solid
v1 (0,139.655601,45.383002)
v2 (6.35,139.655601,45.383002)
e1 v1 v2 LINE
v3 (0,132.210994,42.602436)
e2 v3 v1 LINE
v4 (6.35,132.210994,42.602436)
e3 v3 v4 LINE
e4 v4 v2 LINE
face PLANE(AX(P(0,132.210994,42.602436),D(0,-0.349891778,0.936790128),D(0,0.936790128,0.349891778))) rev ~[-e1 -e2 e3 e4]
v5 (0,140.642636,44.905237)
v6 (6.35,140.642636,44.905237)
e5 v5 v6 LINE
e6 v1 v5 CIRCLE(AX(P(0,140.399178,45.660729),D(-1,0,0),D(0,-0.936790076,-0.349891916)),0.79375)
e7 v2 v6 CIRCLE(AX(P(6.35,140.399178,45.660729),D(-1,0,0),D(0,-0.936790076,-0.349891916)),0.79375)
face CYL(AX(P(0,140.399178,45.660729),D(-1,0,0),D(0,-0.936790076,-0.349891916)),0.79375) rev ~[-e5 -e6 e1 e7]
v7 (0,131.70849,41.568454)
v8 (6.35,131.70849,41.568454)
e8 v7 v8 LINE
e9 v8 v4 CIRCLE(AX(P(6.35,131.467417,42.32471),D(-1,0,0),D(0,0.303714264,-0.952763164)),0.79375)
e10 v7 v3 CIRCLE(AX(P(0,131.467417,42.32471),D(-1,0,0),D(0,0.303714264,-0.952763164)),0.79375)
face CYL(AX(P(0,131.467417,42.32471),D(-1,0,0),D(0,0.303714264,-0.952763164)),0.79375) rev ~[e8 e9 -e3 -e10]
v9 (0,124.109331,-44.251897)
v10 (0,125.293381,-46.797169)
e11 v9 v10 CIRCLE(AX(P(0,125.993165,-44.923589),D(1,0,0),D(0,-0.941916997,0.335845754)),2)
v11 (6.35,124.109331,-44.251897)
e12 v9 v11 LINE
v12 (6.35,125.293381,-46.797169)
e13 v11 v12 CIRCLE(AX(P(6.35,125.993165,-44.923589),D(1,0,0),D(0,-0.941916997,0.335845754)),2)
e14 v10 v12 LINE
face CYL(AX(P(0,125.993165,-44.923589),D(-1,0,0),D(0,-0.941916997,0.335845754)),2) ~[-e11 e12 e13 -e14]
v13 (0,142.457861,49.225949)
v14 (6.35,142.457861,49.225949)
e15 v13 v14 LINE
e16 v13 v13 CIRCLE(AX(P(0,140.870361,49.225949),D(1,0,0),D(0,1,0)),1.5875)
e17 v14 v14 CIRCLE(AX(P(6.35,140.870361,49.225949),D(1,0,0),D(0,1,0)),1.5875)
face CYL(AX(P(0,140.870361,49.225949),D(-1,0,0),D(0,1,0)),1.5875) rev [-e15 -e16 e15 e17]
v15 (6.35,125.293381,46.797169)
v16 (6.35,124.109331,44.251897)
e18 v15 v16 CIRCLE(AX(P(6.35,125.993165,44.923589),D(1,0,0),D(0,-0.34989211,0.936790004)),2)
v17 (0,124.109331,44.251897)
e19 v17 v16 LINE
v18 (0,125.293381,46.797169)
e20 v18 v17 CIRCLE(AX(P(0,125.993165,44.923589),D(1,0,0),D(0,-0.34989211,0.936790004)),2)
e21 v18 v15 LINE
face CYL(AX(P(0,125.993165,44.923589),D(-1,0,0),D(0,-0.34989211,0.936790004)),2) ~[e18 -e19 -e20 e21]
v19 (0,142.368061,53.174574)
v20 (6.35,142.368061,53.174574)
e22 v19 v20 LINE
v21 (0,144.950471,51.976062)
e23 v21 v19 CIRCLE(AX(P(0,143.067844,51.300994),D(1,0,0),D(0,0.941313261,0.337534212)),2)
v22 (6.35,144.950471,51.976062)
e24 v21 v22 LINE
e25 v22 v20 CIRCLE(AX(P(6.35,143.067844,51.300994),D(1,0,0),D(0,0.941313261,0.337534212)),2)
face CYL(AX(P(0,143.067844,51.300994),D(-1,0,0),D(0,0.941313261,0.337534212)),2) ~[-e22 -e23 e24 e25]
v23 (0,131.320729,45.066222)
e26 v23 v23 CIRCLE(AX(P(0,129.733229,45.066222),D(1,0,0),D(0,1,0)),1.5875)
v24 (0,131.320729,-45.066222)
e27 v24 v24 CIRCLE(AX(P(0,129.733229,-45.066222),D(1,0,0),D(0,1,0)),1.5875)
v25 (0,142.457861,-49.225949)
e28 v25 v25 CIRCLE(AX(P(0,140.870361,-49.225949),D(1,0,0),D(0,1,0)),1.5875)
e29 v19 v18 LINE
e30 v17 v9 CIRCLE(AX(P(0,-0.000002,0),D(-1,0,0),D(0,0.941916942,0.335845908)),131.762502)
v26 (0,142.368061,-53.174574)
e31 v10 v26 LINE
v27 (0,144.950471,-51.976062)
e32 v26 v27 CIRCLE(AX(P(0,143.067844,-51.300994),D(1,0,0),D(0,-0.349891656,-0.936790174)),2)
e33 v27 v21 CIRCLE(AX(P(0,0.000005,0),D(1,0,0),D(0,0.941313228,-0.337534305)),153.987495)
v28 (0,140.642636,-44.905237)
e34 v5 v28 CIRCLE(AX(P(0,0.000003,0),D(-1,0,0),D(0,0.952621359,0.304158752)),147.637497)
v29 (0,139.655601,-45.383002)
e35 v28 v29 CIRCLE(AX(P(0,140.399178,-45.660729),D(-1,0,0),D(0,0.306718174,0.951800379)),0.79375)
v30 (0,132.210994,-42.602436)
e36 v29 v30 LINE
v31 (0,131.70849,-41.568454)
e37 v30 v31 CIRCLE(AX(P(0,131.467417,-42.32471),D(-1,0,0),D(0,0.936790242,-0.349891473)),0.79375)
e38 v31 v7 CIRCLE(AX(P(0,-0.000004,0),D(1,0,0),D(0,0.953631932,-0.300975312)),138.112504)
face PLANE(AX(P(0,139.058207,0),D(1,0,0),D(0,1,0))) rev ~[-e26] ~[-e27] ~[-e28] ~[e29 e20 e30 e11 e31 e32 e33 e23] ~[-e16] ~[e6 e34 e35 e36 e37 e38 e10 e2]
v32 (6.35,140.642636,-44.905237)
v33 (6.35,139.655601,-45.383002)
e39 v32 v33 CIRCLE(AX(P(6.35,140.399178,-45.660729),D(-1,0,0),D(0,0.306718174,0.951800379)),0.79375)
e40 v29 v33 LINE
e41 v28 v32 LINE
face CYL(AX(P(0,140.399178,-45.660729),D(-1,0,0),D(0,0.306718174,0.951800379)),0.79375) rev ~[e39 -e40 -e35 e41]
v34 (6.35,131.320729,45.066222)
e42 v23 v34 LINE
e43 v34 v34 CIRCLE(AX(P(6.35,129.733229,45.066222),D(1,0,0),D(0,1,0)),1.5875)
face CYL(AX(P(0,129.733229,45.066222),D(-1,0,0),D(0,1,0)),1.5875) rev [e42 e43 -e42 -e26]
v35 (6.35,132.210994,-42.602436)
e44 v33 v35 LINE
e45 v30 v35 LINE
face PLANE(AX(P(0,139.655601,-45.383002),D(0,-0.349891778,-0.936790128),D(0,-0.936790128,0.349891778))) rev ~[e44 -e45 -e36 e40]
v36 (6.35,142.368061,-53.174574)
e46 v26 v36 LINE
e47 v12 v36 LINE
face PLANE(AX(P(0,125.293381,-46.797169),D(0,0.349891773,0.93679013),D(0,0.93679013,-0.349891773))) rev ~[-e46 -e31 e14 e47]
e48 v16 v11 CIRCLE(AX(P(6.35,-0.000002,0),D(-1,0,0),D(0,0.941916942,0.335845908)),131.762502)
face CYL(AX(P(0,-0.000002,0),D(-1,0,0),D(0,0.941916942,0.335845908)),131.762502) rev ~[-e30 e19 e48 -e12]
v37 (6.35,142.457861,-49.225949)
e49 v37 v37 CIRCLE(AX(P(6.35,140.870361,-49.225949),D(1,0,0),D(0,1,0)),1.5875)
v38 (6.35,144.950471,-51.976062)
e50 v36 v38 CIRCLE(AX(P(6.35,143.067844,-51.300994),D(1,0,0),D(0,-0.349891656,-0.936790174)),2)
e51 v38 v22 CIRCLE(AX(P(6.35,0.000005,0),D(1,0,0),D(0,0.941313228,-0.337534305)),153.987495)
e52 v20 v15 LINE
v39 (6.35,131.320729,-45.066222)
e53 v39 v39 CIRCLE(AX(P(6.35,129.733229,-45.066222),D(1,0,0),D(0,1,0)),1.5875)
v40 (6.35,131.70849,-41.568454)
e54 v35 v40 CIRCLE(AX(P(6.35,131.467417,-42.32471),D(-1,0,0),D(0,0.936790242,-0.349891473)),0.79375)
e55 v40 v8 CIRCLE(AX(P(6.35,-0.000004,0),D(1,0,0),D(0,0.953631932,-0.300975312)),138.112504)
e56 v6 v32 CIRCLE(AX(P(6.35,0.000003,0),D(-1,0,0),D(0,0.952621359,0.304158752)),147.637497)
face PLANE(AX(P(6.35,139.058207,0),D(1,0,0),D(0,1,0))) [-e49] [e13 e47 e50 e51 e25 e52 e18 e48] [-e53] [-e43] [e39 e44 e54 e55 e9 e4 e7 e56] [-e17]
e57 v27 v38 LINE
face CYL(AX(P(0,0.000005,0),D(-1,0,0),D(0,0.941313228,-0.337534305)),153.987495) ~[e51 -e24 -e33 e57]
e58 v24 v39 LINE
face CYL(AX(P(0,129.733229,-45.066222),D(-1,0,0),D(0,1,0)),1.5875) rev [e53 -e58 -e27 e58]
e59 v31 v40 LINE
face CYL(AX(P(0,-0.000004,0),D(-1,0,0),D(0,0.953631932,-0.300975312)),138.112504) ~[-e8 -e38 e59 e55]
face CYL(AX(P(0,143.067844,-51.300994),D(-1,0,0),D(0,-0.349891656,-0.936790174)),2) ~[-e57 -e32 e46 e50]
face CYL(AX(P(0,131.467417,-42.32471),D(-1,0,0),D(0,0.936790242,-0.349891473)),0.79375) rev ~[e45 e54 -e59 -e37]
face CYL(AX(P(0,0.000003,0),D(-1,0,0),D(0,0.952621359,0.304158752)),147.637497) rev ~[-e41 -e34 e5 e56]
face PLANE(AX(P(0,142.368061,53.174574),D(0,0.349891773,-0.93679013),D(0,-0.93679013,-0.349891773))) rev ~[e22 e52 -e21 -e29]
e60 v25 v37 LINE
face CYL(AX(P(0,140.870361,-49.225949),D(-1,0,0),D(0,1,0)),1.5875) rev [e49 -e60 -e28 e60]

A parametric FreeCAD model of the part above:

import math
import FreeCAD as App
import Part
import Sketcher
from FreeCAD import Vector
Q = App.Units.Quantity

doc = App.newDocument("Part")
body = doc.addObject("PartDesign::Body", "Body")

sketch1 = doc.addObject("Sketcher::SketchObject", "Sketch")
body.addObject(sketch1)
sketch1.AttachmentSupport = (doc.YZ_Plane, [""])
sketch1.MapMode = "FlatFace"
sketch1.addGeometry([
    Part.ArcOfCircle(Part.Circle(Vector(126, 44.9, 0), Vector(0, 0, 1), 2), math.radians(110), math.radians(200)),
    Part.ArcOfCircle(Part.Circle(Vector(0, 0, 0), Vector(0, 0, 1), 131.8), math.radians(-20), math.radians(20)),
    Part.ArcOfCircle(Part.Circle(Vector(126, -44.9, 0), Vector(0, 0, 1), 2), math.radians(160), math.radians(250)),
    Part.LineSegment(Vector(125.3, -46.8, 0), Vector(142.4, -53.2, 0)),
    Part.ArcOfCircle(Part.Circle(Vector(143.1, -51.3, 0), Vector(0, 0, 1), 2), math.radians(-110), math.radians(-20)),
    Part.ArcOfCircle(Part.Circle(Vector(0, 0, 0), Vector(0, 0, 1), 154), math.radians(-20), math.radians(20)),
    Part.ArcOfCircle(Part.Circle(Vector(143.1, 51.3, 0), Vector(0, 0, 1), 2), math.radians(20), math.radians(110)),
    Part.LineSegment(Vector(142.4, 53.2, 0), Vector(125.3, 46.8, 0)),
    Part.Circle(Vector(129.7, -45.1, 0), Vector(0, 0, 1), 1.6),
    Part.Circle(Vector(140.9, -49.2, 0), Vector(0, 0, 1), 1.6),
    Part.Circle(Vector(129.7, 45.1, 0), Vector(0, 0, 1), 1.6),
    Part.ArcOfCircle(Part.Circle(Vector(131.5, -42.3, 0), Vector(0, 0, 1), 0.8), math.radians(72), math.radians(340)),
    Part.ArcOfCircle(Part.Circle(Vector(0, 0, 0), Vector(0, 0, 1), 138.1), math.radians(-18), math.radians(18)),
    Part.ArcOfCircle(Part.Circle(Vector(131.5, 42.3, 0), Vector(0, 0, 1), 0.8), math.radians(20), math.radians(288)),
    Part.LineSegment(Vector(132.2, 42.6, 0), Vector(139.7, 45.4, 0)),
    Part.ArcOfCircle(Part.Circle(Vector(140.4, 45.7, 0), Vector(0, 0, 1), 0.8), math.radians(-72), math.radians(200)),
    Part.ArcOfCircle(Part.Circle(Vector(0, 0, 0), Vector(0, 0, 1), 147.6), math.radians(-18), math.radians(18)),
    Part.ArcOfCircle(Part.Circle(Vector(140.4, -45.7, 0), Vector(0, 0, 1), 0.8), math.radians(160), math.radians(432)),
    Part.LineSegment(Vector(139.7, -45.4, 0), Vector(132.2, -42.6, 0)),
    Part.Circle(Vector(140.9, 49.2, 0), Vector(0, 0, 1), 1.6),
], False)
sketch1.addConstraint([
    Sketcher.Constraint("Tangent", 0, 2, 1, 2),
    Sketcher.Constraint("Tangent", 1, 1, 2, 1),
    Sketcher.Constraint("Tangent", 2, 2, 3, 1),
    Sketcher.Constraint("Tangent", 3, 2, 4, 1),
    Sketcher.Constraint("Tangent", 4, 2, 5, 1),
    Sketcher.Constraint("Tangent", 5, 2, 6, 1),
    Sketcher.Constraint("Tangent", 6, 2, 7, 1),
    Sketcher.Constraint("Tangent", 7, 2, 0, 1),
    Sketcher.Constraint("Coincident", 11, 1, 12, 1),
    Sketcher.Constraint("Coincident", 12, 2, 13, 2),
    Sketcher.Constraint("Coincident", 13, 1, 14, 1),
    Sketcher.Constraint("Coincident", 14, 2, 15, 2),
    Sketcher.Constraint("Coincident", 15, 1, 16, 2),
    Sketcher.Constraint("Coincident", 16, 1, 17, 2),
    Sketcher.Constraint("Coincident", 17, 1, 18, 1),
    Sketcher.Constraint("Coincident", 18, 2, 11, 2),
    Sketcher.Constraint("Coincident", 1, 3, -1, 1),
    Sketcher.Constraint("Coincident", 5, 3, -1, 1),
    Sketcher.Constraint("Coincident", 12, 3, -1, 1),
    Sketcher.Constraint("Coincident", 16, 3, -1, 1),
    Sketcher.Constraint("Equal", 0, 2),
    Sketcher.Constraint("Equal", 2, 4),
    Sketcher.Constraint("Equal", 4, 6),
    Sketcher.Constraint("Equal", 8, 9),
    Sketcher.Constraint("Equal", 9, 10),
    Sketcher.Constraint("Equal", 11, 13),
    Sketcher.Constraint("Equal", 13, 15),
    Sketcher.Constraint("Equal", 15, 17),
    Sketcher.Constraint("Equal", 10, 19),
    Sketcher.Constraint("Symmetric", 8, 3, 10, 3, -1),
    Sketcher.Constraint("Symmetric", 11, 3, 13, 3, -1),
    Sketcher.Constraint("Symmetric", 15, 3, 17, 3, -1),
    Sketcher.Constraint("Symmetric", 9, 3, 19, 3, -1),
    Sketcher.Constraint("Symmetric", 3, 2, 6, 2, -1),
    Sketcher.Constraint("Parallel", 7, 14),
    Sketcher.Constraint("Parallel", 3, 18),
    Sketcher.Constraint("Vertical", 14, 2, 17, 1),
    Sketcher.Constraint("Diameter", 8, Q("0.125 in")),
    Sketcher.Constraint("Radius", 1, Q("5.1875001 in")),
    Sketcher.Constraint("Radius", 11, Q("0.03125 in")),
    Sketcher.Constraint("Radius", 12, Q("5.4375002 in")),
    Sketcher.Constraint("Radius", 16, Q("5.8124999 in")),
    Sketcher.Constraint("Radius", 0, Q("2 mm")),
    Sketcher.Constraint("Radius", 5, Q("153.987495 mm")),
    Sketcher.Constraint("DistanceX", 15, 1, 5, 2, Q("0.1695998 in")),
    Sketcher.Constraint("DistanceX", -1, 1, 14, 2, Q("139.655601 mm")),
    Sketcher.Constraint("DistanceY", -1, 1, 14, 2, Q("45.383002 mm")),
    Sketcher.Constraint("DistanceX", 1, 1, 8, 3, Q("5.623898 mm")),
    Sketcher.Constraint("DistanceX", 9, 3, 3, 2, Q("1.4977 mm")),
    Sketcher.Constraint("Distance", 14, Q("7.946932 mm")),
    Sketcher.Constraint("DistanceY", -1, 1, 0, 3, Q("44.923589 mm")),
    Sketcher.Constraint("DistanceX", -1, 1, 9, 3, Q("140.870361 mm")),
    Sketcher.Constraint("DistanceY", 9, 3, -1, 1, Q("49.225949 mm")),
    Sketcher.Constraint("DistanceY", 11, 3, -1, 1, Q("42.32471 mm")),
    Sketcher.Constraint("DistanceY", 4, 3, 8, 3, Q("6.234772 mm")),
])
pad1 = doc.addObject("PartDesign::Pad", "Pad")
body.addObject(pad1)
pad1.Profile = sketch1
pad1.Length = Q("0.25 in")

doc.recompute()
